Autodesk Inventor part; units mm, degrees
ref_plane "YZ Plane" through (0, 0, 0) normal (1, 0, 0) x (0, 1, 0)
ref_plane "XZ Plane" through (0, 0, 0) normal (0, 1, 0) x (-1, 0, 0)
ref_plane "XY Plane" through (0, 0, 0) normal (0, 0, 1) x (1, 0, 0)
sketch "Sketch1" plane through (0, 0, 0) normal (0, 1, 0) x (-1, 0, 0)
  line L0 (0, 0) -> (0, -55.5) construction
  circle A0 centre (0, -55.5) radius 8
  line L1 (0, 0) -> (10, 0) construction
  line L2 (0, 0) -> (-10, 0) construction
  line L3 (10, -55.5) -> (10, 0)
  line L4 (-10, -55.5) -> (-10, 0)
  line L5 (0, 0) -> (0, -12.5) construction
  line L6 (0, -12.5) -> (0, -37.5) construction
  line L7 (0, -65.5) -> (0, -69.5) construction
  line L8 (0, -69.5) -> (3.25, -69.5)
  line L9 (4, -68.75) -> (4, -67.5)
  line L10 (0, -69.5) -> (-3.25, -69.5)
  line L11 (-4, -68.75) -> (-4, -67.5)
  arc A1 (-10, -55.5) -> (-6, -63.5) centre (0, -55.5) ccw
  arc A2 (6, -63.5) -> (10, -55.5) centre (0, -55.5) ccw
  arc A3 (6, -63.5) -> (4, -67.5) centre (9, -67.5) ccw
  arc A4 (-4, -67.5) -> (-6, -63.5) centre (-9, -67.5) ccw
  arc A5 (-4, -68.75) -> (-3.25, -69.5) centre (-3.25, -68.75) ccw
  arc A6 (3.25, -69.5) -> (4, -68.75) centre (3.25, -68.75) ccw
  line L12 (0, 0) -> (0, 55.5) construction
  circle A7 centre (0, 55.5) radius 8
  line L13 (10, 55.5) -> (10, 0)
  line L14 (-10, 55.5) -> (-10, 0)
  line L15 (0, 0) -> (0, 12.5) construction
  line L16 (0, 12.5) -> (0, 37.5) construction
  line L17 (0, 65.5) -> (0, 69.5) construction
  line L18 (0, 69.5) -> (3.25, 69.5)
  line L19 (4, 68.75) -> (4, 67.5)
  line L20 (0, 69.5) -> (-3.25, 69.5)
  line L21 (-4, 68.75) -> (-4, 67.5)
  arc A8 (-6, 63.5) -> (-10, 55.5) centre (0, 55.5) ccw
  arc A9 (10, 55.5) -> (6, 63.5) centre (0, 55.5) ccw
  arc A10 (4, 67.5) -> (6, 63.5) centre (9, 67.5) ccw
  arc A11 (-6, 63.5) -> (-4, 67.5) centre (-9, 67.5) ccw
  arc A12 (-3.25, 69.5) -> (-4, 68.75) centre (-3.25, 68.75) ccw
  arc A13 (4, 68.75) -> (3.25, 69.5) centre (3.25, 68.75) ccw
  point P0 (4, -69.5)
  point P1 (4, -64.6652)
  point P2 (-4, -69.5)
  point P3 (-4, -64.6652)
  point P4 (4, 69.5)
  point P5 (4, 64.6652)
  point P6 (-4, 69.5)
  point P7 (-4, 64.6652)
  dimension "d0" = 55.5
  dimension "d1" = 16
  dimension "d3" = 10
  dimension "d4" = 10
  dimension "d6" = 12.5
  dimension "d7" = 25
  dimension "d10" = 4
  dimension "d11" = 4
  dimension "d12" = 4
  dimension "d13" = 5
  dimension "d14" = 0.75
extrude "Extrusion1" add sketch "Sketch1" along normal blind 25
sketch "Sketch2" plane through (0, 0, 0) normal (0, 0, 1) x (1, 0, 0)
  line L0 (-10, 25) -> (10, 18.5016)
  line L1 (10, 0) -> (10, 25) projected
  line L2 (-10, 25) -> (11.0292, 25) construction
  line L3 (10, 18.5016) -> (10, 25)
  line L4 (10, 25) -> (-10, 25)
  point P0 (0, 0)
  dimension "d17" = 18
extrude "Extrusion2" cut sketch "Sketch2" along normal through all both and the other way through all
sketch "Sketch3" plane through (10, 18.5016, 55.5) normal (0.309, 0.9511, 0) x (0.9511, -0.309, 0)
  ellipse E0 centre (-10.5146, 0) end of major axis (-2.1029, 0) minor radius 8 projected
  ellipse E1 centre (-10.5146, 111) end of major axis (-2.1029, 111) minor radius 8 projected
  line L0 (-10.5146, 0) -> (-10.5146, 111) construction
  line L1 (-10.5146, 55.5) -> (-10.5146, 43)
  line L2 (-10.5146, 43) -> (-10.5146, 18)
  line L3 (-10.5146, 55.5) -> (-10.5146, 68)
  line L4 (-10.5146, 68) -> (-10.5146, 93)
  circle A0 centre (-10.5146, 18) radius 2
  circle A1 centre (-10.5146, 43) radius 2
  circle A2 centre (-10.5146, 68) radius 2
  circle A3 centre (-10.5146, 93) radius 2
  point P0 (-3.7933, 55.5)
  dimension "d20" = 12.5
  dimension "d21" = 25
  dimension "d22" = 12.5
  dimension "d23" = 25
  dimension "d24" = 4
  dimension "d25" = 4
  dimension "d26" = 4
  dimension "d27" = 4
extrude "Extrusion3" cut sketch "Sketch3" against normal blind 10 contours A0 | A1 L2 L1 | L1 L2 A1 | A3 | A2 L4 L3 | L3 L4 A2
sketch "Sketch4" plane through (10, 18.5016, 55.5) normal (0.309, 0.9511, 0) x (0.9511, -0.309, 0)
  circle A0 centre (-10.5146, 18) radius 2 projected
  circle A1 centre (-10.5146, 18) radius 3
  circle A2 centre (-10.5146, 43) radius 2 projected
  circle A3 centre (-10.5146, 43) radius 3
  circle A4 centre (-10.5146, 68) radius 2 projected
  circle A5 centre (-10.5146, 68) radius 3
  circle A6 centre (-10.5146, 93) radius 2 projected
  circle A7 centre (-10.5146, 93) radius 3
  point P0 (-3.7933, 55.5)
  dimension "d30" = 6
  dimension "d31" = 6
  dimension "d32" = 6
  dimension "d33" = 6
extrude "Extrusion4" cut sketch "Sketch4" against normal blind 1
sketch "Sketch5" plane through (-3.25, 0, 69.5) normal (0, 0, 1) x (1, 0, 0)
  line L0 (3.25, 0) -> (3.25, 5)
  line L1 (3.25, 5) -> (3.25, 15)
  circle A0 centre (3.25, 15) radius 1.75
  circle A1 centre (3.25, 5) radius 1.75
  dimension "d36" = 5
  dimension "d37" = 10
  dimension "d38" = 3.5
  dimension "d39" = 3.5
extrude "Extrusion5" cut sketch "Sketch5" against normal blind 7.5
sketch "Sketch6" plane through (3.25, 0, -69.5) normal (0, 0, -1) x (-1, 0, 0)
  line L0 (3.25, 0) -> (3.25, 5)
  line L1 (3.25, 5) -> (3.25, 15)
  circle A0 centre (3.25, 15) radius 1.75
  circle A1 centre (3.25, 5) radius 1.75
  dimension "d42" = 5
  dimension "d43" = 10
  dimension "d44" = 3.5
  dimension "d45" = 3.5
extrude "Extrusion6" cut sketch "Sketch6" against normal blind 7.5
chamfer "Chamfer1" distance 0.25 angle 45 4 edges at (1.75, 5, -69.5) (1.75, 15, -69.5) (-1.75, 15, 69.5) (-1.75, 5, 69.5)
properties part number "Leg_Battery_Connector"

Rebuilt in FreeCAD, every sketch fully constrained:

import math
import FreeCAD as App
import Part
import Sketcher

V = App.Vector
Q = App.Units.Quantity


def edges_at(feature, points):
    """Names of the edges that pass closest to the given points."""
    edges = feature.Shape.Edges
    near = lambda p: min(range(len(edges)), key=lambda i: edges[i].distToShape(Part.Vertex(*p))[0])
    return sorted({f"Edge{near(p) + 1}" for p in points})


def add_polygon(sketch, points):
    """Adds a closed chain of lines whose ends are joined by coincident constraints."""
    first, n = sketch.GeometryCount, len(points)
    for a, b in zip(points, points[1:] + points[:1]):
        sketch.addGeometry(Part.LineSegment(App.Vector(*a, 0), App.Vector(*b, 0)), False)
    for i in range(n):
        sketch.addConstraint(Sketcher.Constraint("Coincident", first + i, 2, first + (i + 1) % n, 1))

doc = App.newDocument("Part")
body = doc.addObject("PartDesign::Body", "Body")

sketch1 = doc.addObject("Sketcher::SketchObject", "Sketch")
body.addObject(sketch1)
sketch1.AttachmentSupport = (doc.XZ_Plane, [""])
sketch1.MapMode = "FlatFace"
sketch1.addGeometry([
    Part.ArcOfCircle(Part.Circle(V(0, -55.5, 0), V(0, 0, 1), 10), math.radians(180), math.radians(233.130102)),
    Part.LineSegment(V(-10, -55.5, 0), V(-10, 55.5, 0)),
    Part.ArcOfCircle(Part.Circle(V(0, 55.5, 0), V(0, 0, 1), 10), math.radians(126.869898), math.radians(180)),
    Part.ArcOfCircle(Part.Circle(V(-9, 67.5, 0), V(0, 0, 1), 5), math.radians(-53.130102), math.radians(0)),
    Part.LineSegment(V(-4, 67.5, 0), V(-4, 68.75, 0)),
    Part.ArcOfCircle(Part.Circle(V(-3.25, 68.75, 0), V(0, 0, 1), 0.75), math.radians(90), math.radians(180)),
    Part.LineSegment(V(-3.25, 69.5, 0), V(3.25, 69.5, 0)),
    Part.ArcOfCircle(Part.Circle(V(3.25, 68.75, 0), V(0, 0, 1), 0.75), math.radians(0), math.radians(90)),
    Part.LineSegment(V(4, 68.75, 0), V(4, 67.5, 0)),
    Part.ArcOfCircle(Part.Circle(V(9, 67.5, 0), V(0, 0, 1), 5), math.radians(180), math.radians(233.130102)),
    Part.ArcOfCircle(Part.Circle(V(0, 55.5, 0), V(0, 0, 1), 10), math.radians(0), math.radians(53.130102)),
    Part.LineSegment(V(10, 55.5, 0), V(10, -55.5, 0)),
    Part.ArcOfCircle(Part.Circle(V(0, -55.5, 0), V(0, 0, 1), 10), math.radians(-53.130102), math.radians(0)),
    Part.ArcOfCircle(Part.Circle(V(9, -67.5, 0), V(0, 0, 1), 5), math.radians(126.869898), math.radians(180)),
    Part.LineSegment(V(4, -67.5, 0), V(4, -68.75, 0)),
    Part.ArcOfCircle(Part.Circle(V(3.25, -68.75, 0), V(0, 0, 1), 0.75), math.radians(-90), math.radians(0)),
    Part.LineSegment(V(3.25, -69.5, 0), V(-3.25, -69.5, 0)),
    Part.ArcOfCircle(Part.Circle(V(-3.25, -68.75, 0), V(0, 0, 1), 0.75), math.radians(180), math.radians(270)),
    Part.LineSegment(V(-4, -68.75, 0), V(-4, -67.5, 0)),
    Part.ArcOfCircle(Part.Circle(V(-9, -67.5, 0), V(0, 0, 1), 5), math.radians(0), math.radians(53.130102)),
    Part.Circle(V(0, -55.5, 0), V(0, 0, 1), 8),
    Part.Circle(V(0, 55.5, 0), V(0, 0, 1), 8),
], False)
sketch1.addConstraint([
    Sketcher.Constraint("Tangent", 0, 1, 1, 1),
    Sketcher.Constraint("Tangent", 1, 2, 2, 2),
    Sketcher.Constraint("Tangent", 2, 1, 3, 1),
    Sketcher.Constraint("Tangent", 3, 2, 4, 1),
    Sketcher.Constraint("Tangent", 4, 2, 5, 2),
    Sketcher.Constraint("Tangent", 5, 1, 6, 1),
    Sketcher.Constraint("Tangent", 6, 2, 7, 2),
    Sketcher.Constraint("Tangent", 7, 1, 8, 1),
    Sketcher.Constraint("Tangent", 8, 2, 9, 1),
    Sketcher.Constraint("Tangent", 9, 2, 10, 2),
    Sketcher.Constraint("Tangent", 10, 1, 11, 1),
    Sketcher.Constraint("Tangent", 11, 2, 12, 2),
    Sketcher.Constraint("Tangent", 12, 1, 13, 1),
    Sketcher.Constraint("Tangent", 13, 2, 14, 1),
    Sketcher.Constraint("Tangent", 14, 2, 15, 2),
    Sketcher.Constraint("Tangent", 15, 1, 16, 1),
    Sketcher.Constraint("Tangent", 16, 2, 17, 2),
    Sketcher.Constraint("Tangent", 17, 1, 18, 1),
    Sketcher.Constraint("Tangent", 18, 2, 19, 1),
    Sketcher.Constraint("Tangent", 19, 2, 0, 2),
    Sketcher.Constraint("Vertical", 1),
    Sketcher.Constraint("Vertical", 4),
    Sketcher.Constraint("Horizontal", 6),
    Sketcher.Constraint("Vertical", 8),
    Sketcher.Constraint("Vertical", 11),
    Sketcher.Constraint("Vertical", 14),
    Sketcher.Constraint("Horizontal", 16),
    Sketcher.Constraint("Vertical", 18),
    Sketcher.Constraint("Coincident", 10, 3, 2, 3),
    Sketcher.Constraint("Coincident", 12, 3, 0, 3),
    Sketcher.Constraint("Coincident", 20, 3, 0, 3),
    Sketcher.Constraint("Coincident", 21, 3, 2, 3),
    Sketcher.Constraint("Equal", 0, 2),
    Sketcher.Constraint("Equal", 5, 7),
    Sketcher.Constraint("Equal", 3, 9),
    Sketcher.Constraint("Equal", 2, 10),
    Sketcher.Constraint("Equal", 9, 13),
    Sketcher.Constraint("Equal", 7, 15),
    Sketcher.Constraint("Equal", 15, 17),
    Sketcher.Constraint("Equal", 13, 19),
    Sketcher.Constraint("Equal", 20, 21),
    Sketcher.Constraint("Symmetric", 0, 3, 2, 3, -1, 1),
    Sketcher.Constraint("Symmetric", 5, 3, 15, 3, -1, 1),
    Sketcher.Constraint("Horizontal", 3, 3, 9, 3),
    Sketcher.Constraint("Horizontal", 13, 3, 19, 3),
    Sketcher.Constraint("Diameter", 20, 16.0),
    Sketcher.Constraint("Radius", 0, 10.0),
    Sketcher.Constraint("Radius", 3, 5.0),
    Sketcher.Constraint("Radius", 5, 0.75),
    Sketcher.Constraint("DistanceX", 3, 2, -1, 1, 4.0),
    Sketcher.Constraint("DistanceY", 0, 3, -1, 1, 55.5),
    Sketcher.Constraint("DistanceY", 3, 2, 5, 1, 2.0),
])
pad1 = doc.addObject("PartDesign::Pad", "Pad")
body.addObject(pad1)
pad1.Profile = sketch1
pad1.Length = 25
pad1.Reversed = True

sketch2 = doc.addObject("Sketcher::SketchObject", "Sketch001")
body.addObject(sketch2)
sketch2.AttachmentSupport = (doc.XY_Plane, [""])
sketch2.MapMode = "FlatFace"
add_polygon(sketch2, [(10, 25), (-10, 25), (10, 18.5016)])
sketch2.addConstraint([
    Sketcher.Constraint("Horizontal", 0),
    Sketcher.Constraint("Vertical", 2),
    Sketcher.Constraint("Angle", 1, Q("-18 deg")),
    Sketcher.Constraint("DistanceX", 0, 2, 0, 1, 20.0),
    Sketcher.Constraint("DistanceX", 0, 2, -1, 1, 10.0),
    Sketcher.Constraint("DistanceY", -1, 1, 0, 2, 25.0),
])
pocket1 = doc.addObject("PartDesign::Pocket", "Pocket")
body.addObject(pocket1)
pocket1.Profile = sketch2
pocket1.Type = "ThroughAll"
pocket1.Midplane = True

sketch3 = doc.addObject("Sketcher::SketchObject", "Sketch002")
body.addObject(sketch3)
sketch3.Placement = App.Placement(V(10, 18.5016, 55.5), App.Rotation(V(0.951056516, -0.309016994, 0), V(0, 0, -0.999999999), V(0.309016994, 0.951056516, 0), "ZXY"))
sketch3.addGeometry([
    Part.Circle(V(-10.5146, 18, 0), V(0, 0, 1), 2),
    Part.Circle(V(-10.5146, 43, 0), V(0, 0, 1), 2),
    Part.Circle(V(-10.5146, 93, 0), V(0, 0, 1), 2),
    Part.Circle(V(-10.5146, 68, 0), V(0, 0, 1), 2),
], False)
sketch3.addConstraint([
    Sketcher.Constraint("Equal", 0, 1),
    Sketcher.Constraint("Equal", 1, 2),
    Sketcher.Constraint("Equal", 2, 3),
    Sketcher.Constraint("Vertical", 0, 3, 1, 3),
    Sketcher.Constraint("Vertical", 1, 3, 2, 3),
    Sketcher.Constraint("Vertical", 2, 3, 3, 3),
    Sketcher.Constraint("Diameter", 0, 4.0),
    Sketcher.Constraint("DistanceY", 0, 3, 1, 3, 25.0),
    Sketcher.Constraint("DistanceY", 3, 3, 2, 3, 25.0),
    Sketcher.Constraint("DistanceY", 1, 3, 3, 3, 25.0),
    Sketcher.Constraint("DistanceY", -1, 1, 0, 3, 18.0),
    Sketcher.Constraint("DistanceX", 0, 3, -1, 1, 10.5146),
])
pocket2 = doc.addObject("PartDesign::Pocket", "Pocket001")
body.addObject(pocket2)
pocket2.Profile = sketch3
pocket2.Length = 10

sketch4 = doc.addObject("Sketcher::SketchObject", "Sketch003")
body.addObject(sketch4)
sketch4.Placement = App.Placement(V(10, 18.5016, 55.5), App.Rotation(V(0.951056516, -0.309016994, 0), V(0, 0, -0.999999999), V(0.309016994, 0.951056516, 0), "ZXY"))
sketch4.addGeometry([
    Part.Circle(V(-10.5146, 18, 0), V(0, 0, 1), 3),
    Part.Circle(V(-10.5146, 18, 0), V(0, 0, 1), 2),
    Part.Circle(V(-10.5146, 43, 0), V(0, 0, 1), 3),
    Part.Circle(V(-10.5146, 43, 0), V(0, 0, 1), 2),
    Part.Circle(V(-10.5146, 68, 0), V(0, 0, 1), 3),
    Part.Circle(V(-10.5146, 68, 0), V(0, 0, 1), 2),
    Part.Circle(V(-10.5146, 93, 0), V(0, 0, 1), 3),
    Part.Circle(V(-10.5146, 93, 0), V(0, 0, 1), 2),
], False)
sketch4.addConstraint([
    Sketcher.Constraint("Coincident", 1, 3, 0, 3),
    Sketcher.Constraint("Coincident", 3, 3, 2, 3),
    Sketcher.Constraint("Coincident", 5, 3, 4, 3),
    Sketcher.Constraint("Coincident", 7, 3, 6, 3),
    Sketcher.Constraint("Equal", 0, 2),
    Sketcher.Constraint("Equal", 1, 3),
    Sketcher.Constraint("Equal", 2, 4),
    Sketcher.Constraint("Equal", 3, 5),
    Sketcher.Constraint("Equal", 4, 6),
    Sketcher.Constraint("Equal", 5, 7),
    Sketcher.Constraint("Vertical", 1, 3, 2, 3),
    Sketcher.Constraint("Vertical", 3, 3, 4, 3),
    Sketcher.Constraint("Vertical", 5, 3, 6, 3),
    Sketcher.Constraint("Diameter", 0, 6.0),
    Sketcher.Constraint("Diameter", 1, 4.0),
    Sketcher.Constraint("DistanceY", -1, 1, 0, 3, 18.0),
    Sketcher.Constraint("DistanceY", -1, 1, 2, 3, 43.0),
    Sketcher.Constraint("DistanceY", -1, 1, 4, 3, 68.0),
    Sketcher.Constraint("DistanceY", -1, 1, 6, 3, 93.0),
    Sketcher.Constraint("DistanceX", 0, 3, -1, 1, 10.5146),
])
pocket3 = doc.addObject("PartDesign::Pocket", "Pocket002")
body.addObject(pocket3)
pocket3.Profile = sketch4
pocket3.Length = 1

sketch5 = doc.addObject("Sketcher::SketchObject", "Sketch004")
body.addObject(sketch5)
sketch5.AttachmentSupport = (doc.XY_Plane, [""])
sketch5.MapMode = "FlatFace"
sketch5.AttachmentOffset = App.Placement(V(0, 0, 69.5), App.Rotation())
sketch5.addGeometry([
    Part.Circle(V(0, 5, 0), V(0, 0, 1), 1.75),
    Part.Circle(V(0, 15, 0), V(0, 0, 1), 1.75),
], False)
sketch5.addConstraint([
    Sketcher.Constraint("Equal", 0, 1),
    Sketcher.Constraint("PointOnObject", 0, 3, -2),
    Sketcher.Constraint("PointOnObject", 1, 3, -2),
    Sketcher.Constraint("Diameter", 0, 3.5),
    Sketcher.Constraint("DistanceY", -1, 1, 0, 3, 5.0),
    Sketcher.Constraint("DistanceY", 0, 3, 1, 3, 10.0),
])
pocket4 = doc.addObject("PartDesign::Pocket", "Pocket003")
body.addObject(pocket4)
pocket4.Profile = sketch5
pocket4.Length = 7.5

sketch6 = doc.addObject("Sketcher::SketchObject", "Sketch005")
body.addObject(sketch6)
sketch6.AttachmentSupport = (doc.XY_Plane, [""])
sketch6.MapMode = "FlatFace"
sketch6.AttachmentOffset = App.Placement(V(0, 0, -69.5), App.Rotation())
sketch6.addGeometry([
    Part.Circle(V(0, 5, 0), V(0, 0, 1), 1.75),
    Part.Circle(V(0, 15, 0), V(0, 0, 1), 1.75),
], False)
sketch6.addConstraint([
    Sketcher.Constraint("Equal", 0, 1),
    Sketcher.Constraint("PointOnObject", 0, 3, -2),
    Sketcher.Constraint("PointOnObject", 1, 3, -2),
    Sketcher.Constraint("Diameter", 0, 3.5),
    Sketcher.Constraint("DistanceY", -1, 1, 0, 3, 5.0),
    Sketcher.Constraint("DistanceY", 0, 3, 1, 3, 10.0),
])
pocket5 = doc.addObject("PartDesign::Pocket", "Pocket004")
body.addObject(pocket5)
pocket5.Profile = sketch6
pocket5.Length = 7.5
pocket5.Reversed = True
doc.recompute()

chamfer = doc.addObject("PartDesign::Chamfer", "Chamfer")
body.addObject(chamfer)
chamfer.Base = (pocket5, edges_at(pocket5, [
    (1.75, 5, -69.5),
    (1.75, 15, -69.5),
    (-1.75, 15, 69.5),
    (-1.75, 5, 69.5),
]))
chamfer.Size = 0.25

doc.recompute()
